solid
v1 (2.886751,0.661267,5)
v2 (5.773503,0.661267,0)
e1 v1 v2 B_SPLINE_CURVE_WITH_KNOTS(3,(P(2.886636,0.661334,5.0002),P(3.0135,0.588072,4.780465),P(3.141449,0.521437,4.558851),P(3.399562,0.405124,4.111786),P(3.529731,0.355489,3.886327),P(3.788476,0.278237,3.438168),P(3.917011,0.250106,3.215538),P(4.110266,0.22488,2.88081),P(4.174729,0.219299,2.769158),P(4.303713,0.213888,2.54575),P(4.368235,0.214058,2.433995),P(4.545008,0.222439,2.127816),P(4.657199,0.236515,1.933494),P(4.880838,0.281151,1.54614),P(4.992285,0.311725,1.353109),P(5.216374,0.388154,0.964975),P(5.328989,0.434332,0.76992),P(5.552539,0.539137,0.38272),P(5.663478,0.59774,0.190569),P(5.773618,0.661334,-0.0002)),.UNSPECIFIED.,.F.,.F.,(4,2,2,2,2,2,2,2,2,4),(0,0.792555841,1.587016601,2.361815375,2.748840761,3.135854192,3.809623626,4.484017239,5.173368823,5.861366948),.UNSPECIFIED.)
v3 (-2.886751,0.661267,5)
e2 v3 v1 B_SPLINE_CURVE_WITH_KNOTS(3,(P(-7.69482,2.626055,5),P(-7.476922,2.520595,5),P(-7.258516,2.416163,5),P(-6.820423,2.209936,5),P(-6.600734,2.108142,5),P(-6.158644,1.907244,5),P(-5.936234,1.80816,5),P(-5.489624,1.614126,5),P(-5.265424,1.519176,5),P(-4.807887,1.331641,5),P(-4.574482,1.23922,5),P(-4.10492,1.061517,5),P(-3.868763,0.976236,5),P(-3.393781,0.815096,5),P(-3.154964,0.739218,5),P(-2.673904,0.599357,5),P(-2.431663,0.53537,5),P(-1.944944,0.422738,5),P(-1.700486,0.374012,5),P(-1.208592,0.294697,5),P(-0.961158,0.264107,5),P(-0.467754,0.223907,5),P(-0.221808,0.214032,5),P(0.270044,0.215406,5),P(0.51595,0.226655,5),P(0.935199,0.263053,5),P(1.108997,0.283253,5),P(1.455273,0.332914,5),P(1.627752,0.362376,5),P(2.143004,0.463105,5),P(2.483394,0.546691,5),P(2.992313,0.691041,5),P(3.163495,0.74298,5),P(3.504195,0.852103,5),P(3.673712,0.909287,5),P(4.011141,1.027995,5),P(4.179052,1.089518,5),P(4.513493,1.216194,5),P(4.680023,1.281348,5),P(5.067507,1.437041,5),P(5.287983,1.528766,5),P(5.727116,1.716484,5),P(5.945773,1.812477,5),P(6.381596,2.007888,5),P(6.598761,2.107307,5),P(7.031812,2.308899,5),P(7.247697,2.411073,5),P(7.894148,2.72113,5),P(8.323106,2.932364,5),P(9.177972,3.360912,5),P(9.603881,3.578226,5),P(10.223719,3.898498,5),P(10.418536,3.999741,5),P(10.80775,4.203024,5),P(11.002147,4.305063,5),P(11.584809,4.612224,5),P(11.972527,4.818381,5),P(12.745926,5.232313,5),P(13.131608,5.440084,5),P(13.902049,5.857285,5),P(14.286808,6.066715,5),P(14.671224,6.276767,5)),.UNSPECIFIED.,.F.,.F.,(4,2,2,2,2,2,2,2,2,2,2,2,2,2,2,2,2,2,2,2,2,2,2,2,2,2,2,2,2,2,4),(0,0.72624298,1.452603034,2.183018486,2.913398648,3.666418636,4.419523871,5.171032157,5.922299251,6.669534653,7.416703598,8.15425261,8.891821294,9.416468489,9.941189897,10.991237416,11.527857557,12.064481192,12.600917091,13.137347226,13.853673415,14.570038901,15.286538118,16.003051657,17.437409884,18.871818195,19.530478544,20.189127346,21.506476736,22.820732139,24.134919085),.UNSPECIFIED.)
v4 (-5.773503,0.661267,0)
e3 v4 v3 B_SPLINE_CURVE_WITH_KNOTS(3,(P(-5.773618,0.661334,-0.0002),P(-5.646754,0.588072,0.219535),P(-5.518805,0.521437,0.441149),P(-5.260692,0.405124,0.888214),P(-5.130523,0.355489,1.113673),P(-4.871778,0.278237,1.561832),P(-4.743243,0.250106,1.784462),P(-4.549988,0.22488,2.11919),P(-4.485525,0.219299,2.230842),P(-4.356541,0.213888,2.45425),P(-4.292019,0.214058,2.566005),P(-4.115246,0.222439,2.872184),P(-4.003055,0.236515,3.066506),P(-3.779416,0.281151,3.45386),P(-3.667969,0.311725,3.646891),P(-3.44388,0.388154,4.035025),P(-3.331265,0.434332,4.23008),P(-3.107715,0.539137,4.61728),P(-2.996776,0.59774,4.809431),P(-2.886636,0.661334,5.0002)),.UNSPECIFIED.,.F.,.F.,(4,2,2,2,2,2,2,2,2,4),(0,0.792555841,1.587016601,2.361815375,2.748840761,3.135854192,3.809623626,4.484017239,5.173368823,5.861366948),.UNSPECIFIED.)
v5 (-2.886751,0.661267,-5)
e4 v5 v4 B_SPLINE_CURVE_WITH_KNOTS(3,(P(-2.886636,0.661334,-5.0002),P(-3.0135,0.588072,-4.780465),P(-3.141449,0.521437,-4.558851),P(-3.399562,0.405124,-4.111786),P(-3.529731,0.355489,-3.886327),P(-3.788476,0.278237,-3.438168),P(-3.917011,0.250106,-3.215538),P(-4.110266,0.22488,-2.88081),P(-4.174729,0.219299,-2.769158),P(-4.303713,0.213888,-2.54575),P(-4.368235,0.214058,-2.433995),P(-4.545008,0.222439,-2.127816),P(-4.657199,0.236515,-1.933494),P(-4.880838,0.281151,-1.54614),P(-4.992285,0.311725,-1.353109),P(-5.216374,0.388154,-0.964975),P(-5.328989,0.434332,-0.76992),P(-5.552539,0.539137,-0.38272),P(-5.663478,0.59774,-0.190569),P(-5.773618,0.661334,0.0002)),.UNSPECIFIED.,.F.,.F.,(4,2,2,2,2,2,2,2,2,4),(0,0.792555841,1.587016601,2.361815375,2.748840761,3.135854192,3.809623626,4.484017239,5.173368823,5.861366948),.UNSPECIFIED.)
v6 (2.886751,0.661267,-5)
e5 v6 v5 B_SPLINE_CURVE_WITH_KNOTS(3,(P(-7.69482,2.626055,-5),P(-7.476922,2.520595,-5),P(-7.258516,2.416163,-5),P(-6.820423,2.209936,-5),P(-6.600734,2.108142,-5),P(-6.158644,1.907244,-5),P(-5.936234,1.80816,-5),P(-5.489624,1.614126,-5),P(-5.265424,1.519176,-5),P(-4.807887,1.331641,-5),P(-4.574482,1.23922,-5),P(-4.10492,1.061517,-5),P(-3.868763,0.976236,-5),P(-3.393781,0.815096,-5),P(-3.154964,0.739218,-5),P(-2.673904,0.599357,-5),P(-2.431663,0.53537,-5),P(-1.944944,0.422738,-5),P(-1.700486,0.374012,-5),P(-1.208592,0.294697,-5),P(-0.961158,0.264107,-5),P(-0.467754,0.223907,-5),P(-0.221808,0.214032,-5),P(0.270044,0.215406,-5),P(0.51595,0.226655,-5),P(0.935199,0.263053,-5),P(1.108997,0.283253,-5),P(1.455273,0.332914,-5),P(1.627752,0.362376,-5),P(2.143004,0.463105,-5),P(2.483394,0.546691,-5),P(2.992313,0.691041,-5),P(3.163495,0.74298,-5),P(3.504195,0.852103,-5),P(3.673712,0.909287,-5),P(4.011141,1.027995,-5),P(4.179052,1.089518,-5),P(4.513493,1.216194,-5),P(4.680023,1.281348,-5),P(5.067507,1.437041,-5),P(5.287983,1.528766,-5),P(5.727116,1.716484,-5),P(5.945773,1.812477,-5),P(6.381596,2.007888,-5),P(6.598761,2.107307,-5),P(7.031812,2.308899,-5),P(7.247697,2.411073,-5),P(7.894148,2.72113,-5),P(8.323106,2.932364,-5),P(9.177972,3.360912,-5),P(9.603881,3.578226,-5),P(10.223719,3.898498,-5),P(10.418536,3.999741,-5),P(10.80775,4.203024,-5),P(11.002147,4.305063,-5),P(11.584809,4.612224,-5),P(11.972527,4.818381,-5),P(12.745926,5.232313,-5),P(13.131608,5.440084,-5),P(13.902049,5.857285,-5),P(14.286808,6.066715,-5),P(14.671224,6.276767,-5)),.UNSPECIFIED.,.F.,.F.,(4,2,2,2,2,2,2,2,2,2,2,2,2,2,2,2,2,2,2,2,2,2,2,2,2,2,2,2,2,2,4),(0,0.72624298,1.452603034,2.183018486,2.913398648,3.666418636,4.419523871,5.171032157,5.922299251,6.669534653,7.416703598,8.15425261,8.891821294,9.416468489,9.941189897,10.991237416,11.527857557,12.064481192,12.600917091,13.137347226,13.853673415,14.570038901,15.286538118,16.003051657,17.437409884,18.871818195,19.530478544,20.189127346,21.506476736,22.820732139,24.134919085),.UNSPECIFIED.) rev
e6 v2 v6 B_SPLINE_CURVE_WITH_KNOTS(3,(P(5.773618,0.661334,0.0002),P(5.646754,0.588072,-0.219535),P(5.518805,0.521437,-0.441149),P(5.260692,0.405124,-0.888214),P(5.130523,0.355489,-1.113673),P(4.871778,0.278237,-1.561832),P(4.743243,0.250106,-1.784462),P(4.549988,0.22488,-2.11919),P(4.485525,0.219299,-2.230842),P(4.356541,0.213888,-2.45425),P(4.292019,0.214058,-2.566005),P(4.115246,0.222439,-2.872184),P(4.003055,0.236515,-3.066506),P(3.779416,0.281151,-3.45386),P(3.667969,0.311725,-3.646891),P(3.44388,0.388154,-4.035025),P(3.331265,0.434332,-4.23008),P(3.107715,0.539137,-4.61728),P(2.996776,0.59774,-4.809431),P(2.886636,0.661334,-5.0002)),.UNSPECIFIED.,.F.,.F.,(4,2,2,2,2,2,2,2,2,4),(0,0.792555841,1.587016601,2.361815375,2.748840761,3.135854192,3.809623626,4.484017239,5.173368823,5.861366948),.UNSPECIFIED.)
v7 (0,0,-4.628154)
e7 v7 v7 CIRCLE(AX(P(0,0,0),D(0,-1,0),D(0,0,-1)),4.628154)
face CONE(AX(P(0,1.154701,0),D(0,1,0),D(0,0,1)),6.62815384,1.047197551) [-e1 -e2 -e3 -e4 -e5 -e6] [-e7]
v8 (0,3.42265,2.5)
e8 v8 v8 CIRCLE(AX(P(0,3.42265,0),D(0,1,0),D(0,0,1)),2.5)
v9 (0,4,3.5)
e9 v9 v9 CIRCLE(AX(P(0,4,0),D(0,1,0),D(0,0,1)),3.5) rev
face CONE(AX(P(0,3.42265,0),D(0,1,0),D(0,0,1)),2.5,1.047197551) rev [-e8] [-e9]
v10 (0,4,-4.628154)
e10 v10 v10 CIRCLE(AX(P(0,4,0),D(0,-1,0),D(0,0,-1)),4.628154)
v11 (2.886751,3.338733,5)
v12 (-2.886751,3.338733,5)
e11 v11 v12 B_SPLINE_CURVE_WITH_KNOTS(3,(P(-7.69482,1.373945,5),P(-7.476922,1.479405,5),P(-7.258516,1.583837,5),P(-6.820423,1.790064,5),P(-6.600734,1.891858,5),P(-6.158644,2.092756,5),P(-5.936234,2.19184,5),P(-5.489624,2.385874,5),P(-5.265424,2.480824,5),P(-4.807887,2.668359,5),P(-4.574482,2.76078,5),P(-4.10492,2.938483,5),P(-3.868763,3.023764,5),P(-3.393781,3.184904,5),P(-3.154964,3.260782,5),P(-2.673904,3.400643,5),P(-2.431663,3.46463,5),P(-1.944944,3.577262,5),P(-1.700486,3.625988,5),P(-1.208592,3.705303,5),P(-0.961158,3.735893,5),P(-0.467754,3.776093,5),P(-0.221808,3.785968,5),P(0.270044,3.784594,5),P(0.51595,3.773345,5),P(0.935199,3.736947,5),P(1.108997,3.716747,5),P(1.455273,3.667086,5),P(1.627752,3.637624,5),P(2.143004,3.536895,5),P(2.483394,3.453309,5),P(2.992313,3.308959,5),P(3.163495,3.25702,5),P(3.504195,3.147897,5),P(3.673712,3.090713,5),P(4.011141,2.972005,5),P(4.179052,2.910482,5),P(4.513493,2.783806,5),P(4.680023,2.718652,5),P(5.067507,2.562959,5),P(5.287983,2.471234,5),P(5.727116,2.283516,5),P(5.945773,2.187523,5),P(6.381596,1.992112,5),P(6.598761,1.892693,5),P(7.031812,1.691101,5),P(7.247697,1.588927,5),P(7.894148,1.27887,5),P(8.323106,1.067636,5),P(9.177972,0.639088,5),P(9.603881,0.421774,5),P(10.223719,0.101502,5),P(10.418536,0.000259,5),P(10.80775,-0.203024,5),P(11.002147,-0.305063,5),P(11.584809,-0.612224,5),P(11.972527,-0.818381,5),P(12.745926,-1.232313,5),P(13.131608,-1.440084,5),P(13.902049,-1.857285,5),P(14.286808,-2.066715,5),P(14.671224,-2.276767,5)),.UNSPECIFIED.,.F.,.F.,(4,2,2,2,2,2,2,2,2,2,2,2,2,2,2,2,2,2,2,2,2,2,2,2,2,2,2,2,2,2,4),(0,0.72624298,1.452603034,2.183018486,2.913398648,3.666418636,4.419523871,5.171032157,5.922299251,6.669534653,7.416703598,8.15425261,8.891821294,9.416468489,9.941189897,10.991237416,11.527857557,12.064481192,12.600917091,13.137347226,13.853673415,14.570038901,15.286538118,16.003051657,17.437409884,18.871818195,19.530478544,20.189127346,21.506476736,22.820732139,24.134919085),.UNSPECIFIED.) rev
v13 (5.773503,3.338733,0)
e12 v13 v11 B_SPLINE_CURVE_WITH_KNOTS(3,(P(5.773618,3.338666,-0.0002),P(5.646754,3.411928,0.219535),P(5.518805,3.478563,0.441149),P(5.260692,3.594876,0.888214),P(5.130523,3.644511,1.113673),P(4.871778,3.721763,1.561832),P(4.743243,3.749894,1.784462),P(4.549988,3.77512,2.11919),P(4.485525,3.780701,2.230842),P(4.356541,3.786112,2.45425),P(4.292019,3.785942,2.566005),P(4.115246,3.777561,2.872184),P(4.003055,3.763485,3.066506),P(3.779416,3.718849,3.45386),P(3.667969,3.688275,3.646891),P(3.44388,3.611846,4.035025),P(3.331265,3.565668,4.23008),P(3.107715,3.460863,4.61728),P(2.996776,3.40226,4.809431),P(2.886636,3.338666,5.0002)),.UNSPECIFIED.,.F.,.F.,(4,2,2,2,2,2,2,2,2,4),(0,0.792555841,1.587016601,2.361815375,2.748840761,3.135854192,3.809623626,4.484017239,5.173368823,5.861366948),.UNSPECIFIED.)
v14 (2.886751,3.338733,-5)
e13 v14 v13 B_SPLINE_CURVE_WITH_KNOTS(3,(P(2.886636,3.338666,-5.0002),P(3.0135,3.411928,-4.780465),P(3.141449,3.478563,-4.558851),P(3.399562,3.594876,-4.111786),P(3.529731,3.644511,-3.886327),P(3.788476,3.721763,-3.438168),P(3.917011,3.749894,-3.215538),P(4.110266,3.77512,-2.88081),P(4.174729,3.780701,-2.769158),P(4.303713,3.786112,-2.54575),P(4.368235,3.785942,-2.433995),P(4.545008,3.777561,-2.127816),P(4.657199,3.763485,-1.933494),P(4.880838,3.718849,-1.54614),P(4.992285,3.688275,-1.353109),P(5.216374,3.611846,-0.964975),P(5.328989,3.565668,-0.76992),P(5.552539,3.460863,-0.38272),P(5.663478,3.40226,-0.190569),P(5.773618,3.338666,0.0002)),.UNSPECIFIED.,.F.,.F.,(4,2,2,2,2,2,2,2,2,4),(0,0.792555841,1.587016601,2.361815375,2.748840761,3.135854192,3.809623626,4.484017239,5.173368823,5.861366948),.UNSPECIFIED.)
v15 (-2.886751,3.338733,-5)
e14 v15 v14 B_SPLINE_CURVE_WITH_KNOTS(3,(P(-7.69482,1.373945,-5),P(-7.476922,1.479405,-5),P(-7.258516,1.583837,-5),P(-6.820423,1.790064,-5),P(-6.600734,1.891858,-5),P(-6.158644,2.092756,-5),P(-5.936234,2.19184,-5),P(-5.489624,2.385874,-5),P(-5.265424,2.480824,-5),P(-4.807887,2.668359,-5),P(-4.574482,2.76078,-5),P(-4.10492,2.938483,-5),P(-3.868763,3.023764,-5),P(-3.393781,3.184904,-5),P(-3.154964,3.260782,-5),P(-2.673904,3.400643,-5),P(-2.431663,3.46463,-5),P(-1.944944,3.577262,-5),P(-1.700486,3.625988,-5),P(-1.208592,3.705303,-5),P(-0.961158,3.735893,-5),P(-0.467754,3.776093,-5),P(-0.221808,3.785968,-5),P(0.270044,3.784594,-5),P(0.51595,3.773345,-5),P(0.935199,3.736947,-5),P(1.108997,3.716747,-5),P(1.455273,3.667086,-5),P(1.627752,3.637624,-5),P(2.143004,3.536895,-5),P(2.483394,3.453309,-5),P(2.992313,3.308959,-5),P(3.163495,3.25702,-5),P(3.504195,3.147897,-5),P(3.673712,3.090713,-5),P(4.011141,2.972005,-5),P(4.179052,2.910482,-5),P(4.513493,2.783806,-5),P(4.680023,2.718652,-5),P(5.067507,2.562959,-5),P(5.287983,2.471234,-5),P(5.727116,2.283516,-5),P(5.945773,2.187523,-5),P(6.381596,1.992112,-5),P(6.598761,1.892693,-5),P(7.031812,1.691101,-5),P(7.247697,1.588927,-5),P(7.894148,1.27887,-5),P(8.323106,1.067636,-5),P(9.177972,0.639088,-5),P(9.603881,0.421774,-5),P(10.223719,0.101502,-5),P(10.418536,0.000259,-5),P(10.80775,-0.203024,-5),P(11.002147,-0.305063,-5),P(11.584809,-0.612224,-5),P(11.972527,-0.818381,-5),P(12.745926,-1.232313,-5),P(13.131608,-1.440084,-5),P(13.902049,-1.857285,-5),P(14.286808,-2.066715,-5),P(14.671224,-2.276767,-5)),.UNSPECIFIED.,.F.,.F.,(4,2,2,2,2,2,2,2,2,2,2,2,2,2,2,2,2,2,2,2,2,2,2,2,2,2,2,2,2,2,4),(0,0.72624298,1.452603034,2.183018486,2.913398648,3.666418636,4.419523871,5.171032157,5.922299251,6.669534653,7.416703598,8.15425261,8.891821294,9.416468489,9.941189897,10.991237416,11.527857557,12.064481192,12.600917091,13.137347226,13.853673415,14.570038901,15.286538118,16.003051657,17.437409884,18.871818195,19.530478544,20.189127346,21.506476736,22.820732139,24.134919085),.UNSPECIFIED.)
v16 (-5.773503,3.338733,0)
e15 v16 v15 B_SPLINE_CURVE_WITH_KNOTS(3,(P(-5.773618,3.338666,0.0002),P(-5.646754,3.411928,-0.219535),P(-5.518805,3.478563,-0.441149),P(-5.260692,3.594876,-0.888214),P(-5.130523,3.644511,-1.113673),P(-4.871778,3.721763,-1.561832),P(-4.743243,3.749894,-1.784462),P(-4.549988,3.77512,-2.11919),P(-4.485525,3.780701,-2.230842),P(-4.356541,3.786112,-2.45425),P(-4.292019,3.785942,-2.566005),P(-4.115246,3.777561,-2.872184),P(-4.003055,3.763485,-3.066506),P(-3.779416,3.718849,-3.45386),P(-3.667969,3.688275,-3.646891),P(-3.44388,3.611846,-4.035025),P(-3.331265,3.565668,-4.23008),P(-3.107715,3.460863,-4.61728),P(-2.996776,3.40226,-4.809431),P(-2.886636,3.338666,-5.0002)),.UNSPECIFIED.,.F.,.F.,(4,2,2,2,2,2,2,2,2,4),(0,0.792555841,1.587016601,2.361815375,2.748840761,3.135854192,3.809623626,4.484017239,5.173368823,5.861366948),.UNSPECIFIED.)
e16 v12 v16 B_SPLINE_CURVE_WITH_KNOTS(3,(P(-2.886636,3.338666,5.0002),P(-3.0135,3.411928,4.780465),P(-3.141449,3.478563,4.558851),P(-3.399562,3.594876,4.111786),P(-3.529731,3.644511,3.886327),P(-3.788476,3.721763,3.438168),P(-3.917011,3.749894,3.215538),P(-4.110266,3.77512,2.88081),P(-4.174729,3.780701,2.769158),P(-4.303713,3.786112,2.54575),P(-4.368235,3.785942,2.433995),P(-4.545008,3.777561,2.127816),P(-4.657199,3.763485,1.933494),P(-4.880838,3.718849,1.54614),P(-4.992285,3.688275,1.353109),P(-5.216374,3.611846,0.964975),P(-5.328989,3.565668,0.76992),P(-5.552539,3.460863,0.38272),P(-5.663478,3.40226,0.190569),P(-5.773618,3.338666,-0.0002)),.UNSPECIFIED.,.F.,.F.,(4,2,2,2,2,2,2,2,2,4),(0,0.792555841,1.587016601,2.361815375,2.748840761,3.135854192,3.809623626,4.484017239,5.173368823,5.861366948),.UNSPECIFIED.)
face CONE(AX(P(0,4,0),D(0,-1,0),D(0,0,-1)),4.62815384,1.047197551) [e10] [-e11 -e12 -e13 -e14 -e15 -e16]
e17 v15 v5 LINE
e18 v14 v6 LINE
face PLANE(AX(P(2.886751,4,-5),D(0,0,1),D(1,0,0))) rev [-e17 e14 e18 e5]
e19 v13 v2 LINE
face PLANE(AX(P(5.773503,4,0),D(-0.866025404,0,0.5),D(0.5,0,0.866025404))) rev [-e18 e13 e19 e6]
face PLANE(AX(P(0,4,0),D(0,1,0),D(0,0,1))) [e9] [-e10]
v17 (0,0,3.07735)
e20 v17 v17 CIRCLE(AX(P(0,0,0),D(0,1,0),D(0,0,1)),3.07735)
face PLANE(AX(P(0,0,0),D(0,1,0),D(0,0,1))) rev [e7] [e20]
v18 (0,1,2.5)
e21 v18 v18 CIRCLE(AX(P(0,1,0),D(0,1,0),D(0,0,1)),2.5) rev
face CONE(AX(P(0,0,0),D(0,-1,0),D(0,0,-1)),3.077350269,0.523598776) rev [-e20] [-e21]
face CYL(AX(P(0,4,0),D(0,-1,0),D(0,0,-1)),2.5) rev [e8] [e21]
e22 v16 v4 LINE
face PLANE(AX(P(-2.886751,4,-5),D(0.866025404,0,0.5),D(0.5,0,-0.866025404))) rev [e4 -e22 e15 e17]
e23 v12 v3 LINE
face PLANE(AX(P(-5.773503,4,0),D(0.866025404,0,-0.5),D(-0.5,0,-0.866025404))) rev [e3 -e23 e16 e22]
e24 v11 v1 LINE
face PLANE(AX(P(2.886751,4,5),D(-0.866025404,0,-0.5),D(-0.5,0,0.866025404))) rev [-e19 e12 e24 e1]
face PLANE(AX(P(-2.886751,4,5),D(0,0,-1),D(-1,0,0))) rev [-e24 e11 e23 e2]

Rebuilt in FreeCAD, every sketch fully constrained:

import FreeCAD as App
import Part
import Sketcher
from FreeCAD import Vector
Q = App.Units.Quantity


def edges_at(feature, points):
    """Names of the edges that pass closest to the given points."""
    edges = feature.Shape.Edges
    near = lambda p: min(range(len(edges)), key=lambda i: edges[i].distToShape(Part.Vertex(*p))[0])
    return sorted({f"Edge{near(p) + 1}" for p in points})

doc = App.newDocument("Part")
params = doc.addObject("Spreadsheet::Sheet", "Params")
for row, (alias, value) in enumerate([
    ("sketch1_diameter", "5 mm"),
    ("pad1_length", "4 mm"),
    ("chamfer_size", "1 mm"),
    ("chamfer_size2", "0.57735 mm"),
    ("chamfer2_size", "1 mm"),
    ("chamfer2_size2", "0.57735 mm"),
    ("sketch2_height", "2 mm"),
    ("groove_angle", "360 deg"),
], start=1):
    params.set(f"A{row}", alias)
    params.set(f"B{row}", "=" + value)
    params.setAlias(f"B{row}", alias)

body = doc.addObject("PartDesign::Body", "Body")

sketch1 = doc.addObject("Sketcher::SketchObject", "Sketch")
body.addObject(sketch1)
sketch1.AttachmentSupport = (doc.XZ_Plane, [""])
sketch1.MapMode = "FlatFace"
sketch1.addGeometry(Part.LineSegment(Vector(-5.773503, 0, 0), Vector(-2.886751, 5, 0)), False)
sketch1.addGeometry(Part.LineSegment(Vector(-2.886751, 5, 0), Vector(2.886751, 5, 0)), False)
sketch1.addGeometry(Part.LineSegment(Vector(2.886751, 5, 0), Vector(5.773503, 0, 0)), False)
sketch1.addGeometry(Part.LineSegment(Vector(5.773503, 0, 0), Vector(2.886751, -5, 0)), False)
sketch1.addGeometry(Part.LineSegment(Vector(2.886751, -5, 0), Vector(-2.886751, -5, 0)), False)
sketch1.addGeometry(Part.LineSegment(Vector(-2.886751, -5, 0), Vector(-5.773503, 0, 0)), False)
sketch1.addGeometry(Part.Circle(Vector(0, 0, 0), Vector(0, 0, 1), 2.5), False)
sketch1.addConstraint(Sketcher.Constraint("Coincident", 0, 2, 1, 1))
sketch1.addConstraint(Sketcher.Constraint("Coincident", 1, 2, 2, 1))
sketch1.addConstraint(Sketcher.Constraint("Coincident", 2, 2, 3, 1))
sketch1.addConstraint(Sketcher.Constraint("Coincident", 3, 2, 4, 1))
sketch1.addConstraint(Sketcher.Constraint("Coincident", 4, 2, 5, 1))
sketch1.addConstraint(Sketcher.Constraint("Coincident", 5, 2, 0, 1))
sketch1.addConstraint(Sketcher.Constraint("Horizontal", 1))
sketch1.addConstraint(Sketcher.Constraint("Horizontal", 4))
sketch1.addConstraint(Sketcher.Constraint("Coincident", 6, 3, -1, 1))
sketch1.addConstraint(Sketcher.Constraint("Symmetric", 0, 2, 3, 2, -1, 1))
sketch1.addConstraint(Sketcher.Constraint("Symmetric", 2, 2, 5, 2, -1, 1))
sketch1.addConstraint(Sketcher.Constraint("PointOnObject", 2, 2, -1))
sketch1.addConstraint(Sketcher.Constraint("Parallel", 2, 5))
sketch1.addConstraint(Sketcher.Constraint("Vertical", 1, 2, 3, 2))
sketch1.addConstraint(Sketcher.Constraint("Diameter", 6, Q("5 mm")))
sketch1.addConstraint(Sketcher.Constraint("Angle", 0, Q("60 deg")))
sketch1.addConstraint(Sketcher.Constraint("DistanceY", -1, 1, 0, 2, Q("5 mm")))
sketch1.addConstraint(Sketcher.Constraint("DistanceX", 1, 1, 1, 2, Q("5.773503 mm")))
sketch1.setExpression("Constraints[14]", "Params.sketch1_diameter")
pad1 = doc.addObject("PartDesign::Pad", "Pad")
body.addObject(pad1)
pad1.Profile = sketch1
pad1.setExpression("Length", "Params.pad1_length")
pad1.Reversed = True
doc.recompute()

chamfer = doc.addObject("PartDesign::Chamfer", "Chamfer")
body.addObject(chamfer)
chamfer.Base = (pad1, edges_at(pad1, [(-2.5, 0, 0)]))
chamfer.ChamferType = "Two distances"
chamfer.setExpression("Size", "Params.chamfer_size")
chamfer.setExpression("Size2", "Params.chamfer_size2")
doc.recompute()

chamfer2 = doc.addObject("PartDesign::Chamfer", "Chamfer001")
body.addObject(chamfer2)
chamfer2.Base = (chamfer, edges_at(chamfer, [(-2.5, 4, 0)]))
chamfer2.ChamferType = "Two distances"
chamfer2.setExpression("Size", "Params.chamfer2_size")
chamfer2.setExpression("Size2", "Params.chamfer2_size2")
chamfer2.FlipDirection = True

sketch2 = doc.addObject("Sketcher::SketchObject", "Sketch001")
body.addObject(sketch2)
sketch2.AttachmentSupport = (doc.YZ_Plane, [""])
sketch2.MapMode = "FlatFace"
sketch2.addGeometry(Part.LineSegment(Vector(0, -4.628154, 0), Vector(0, -6.628154, 0)), False)
sketch2.addGeometry(Part.LineSegment(Vector(0, -6.628154, 0), Vector(1.154701, -6.628154, 0)), False)
sketch2.addGeometry(Part.LineSegment(Vector(1.154701, -6.628154, 0), Vector(0, -4.628154, 0)), False)
sketch2.addGeometry(Part.LineSegment(Vector(4, -4.628154, 0), Vector(2.845299, -6.628154, 0)), False)
sketch2.addGeometry(Part.LineSegment(Vector(2.845299, -6.628154, 0), Vector(4, -6.628154, 0)), False)
sketch2.addGeometry(Part.LineSegment(Vector(4, -6.628154, 0), Vector(4, -4.628154, 0)), False)
sketch2.addConstraint(Sketcher.Constraint("Coincident", 0, 2, 1, 1))
sketch2.addConstraint(Sketcher.Constraint("Coincident", 1, 2, 2, 1))
sketch2.addConstraint(Sketcher.Constraint("Coincident", 2, 2, 0, 1))
sketch2.addConstraint(Sketcher.Constraint("Coincident", 3, 2, 4, 1))
sketch2.addConstraint(Sketcher.Constraint("Coincident", 4, 2, 5, 1))
sketch2.addConstraint(Sketcher.Constraint("Coincident", 5, 2, 3, 1))
sketch2.addConstraint(Sketcher.Constraint("Vertical", 0))
sketch2.addConstraint(Sketcher.Constraint("Horizontal", 1))
sketch2.addConstraint(Sketcher.Constraint("Horizontal", 4))
sketch2.addConstraint(Sketcher.Constraint("Vertical", 5))
sketch2.addConstraint(Sketcher.Constraint("PointOnObject", 0, 2, -2))
sketch2.addConstraint(Sketcher.Constraint("Horizontal", 1, 2, 3, 2))
sketch2.addConstraint(Sketcher.Constraint("Horizontal", 2, 2, 5, 2))
sketch2.addConstraint(Sketcher.Constraint("Equal", 1, 4))
sketch2.addConstraint(Sketcher.Constraint("DistanceY", 0, 2, 0, 1, Q("2 mm")))
sketch2.addConstraint(Sketcher.Constraint("Angle", 2, Q("120 deg")))
sketch2.addConstraint(Sketcher.Constraint("DistanceX", -1, 1, 4, 2, Q("4 mm")))
sketch2.addConstraint(Sketcher.Constraint("DistanceY", 0, 2, -1, 1, Q("6.628154 mm")))
sketch2.setExpression("Constraints[14]", "Params.sketch2_height")
groove = doc.addObject("PartDesign::Groove", "Groove")
body.addObject(groove)
groove.Profile = sketch2
groove.ReferenceAxis = (sketch2, ["H_Axis"])
groove.setExpression("Angle", "Params.groove_angle")

doc.recompute()
